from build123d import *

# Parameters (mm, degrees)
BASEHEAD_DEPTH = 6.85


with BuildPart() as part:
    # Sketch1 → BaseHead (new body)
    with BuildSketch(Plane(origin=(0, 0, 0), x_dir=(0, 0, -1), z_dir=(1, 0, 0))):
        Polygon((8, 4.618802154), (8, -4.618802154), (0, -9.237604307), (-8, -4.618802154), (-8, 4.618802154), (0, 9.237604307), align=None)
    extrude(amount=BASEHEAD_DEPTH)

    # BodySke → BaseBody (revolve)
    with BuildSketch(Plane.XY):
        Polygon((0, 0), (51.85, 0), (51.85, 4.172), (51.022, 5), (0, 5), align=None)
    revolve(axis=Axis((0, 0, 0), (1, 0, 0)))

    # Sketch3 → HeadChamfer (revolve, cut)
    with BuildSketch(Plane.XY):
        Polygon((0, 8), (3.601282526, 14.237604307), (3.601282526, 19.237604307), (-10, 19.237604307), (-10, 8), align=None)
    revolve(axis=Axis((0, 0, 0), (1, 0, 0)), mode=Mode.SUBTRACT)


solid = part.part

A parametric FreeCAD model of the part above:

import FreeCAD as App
import Part
import Sketcher
Q = App.Units.Quantity

doc = App.newDocument("Part")
body = doc.addObject("PartDesign::Body", "Body")

sketch1 = doc.addObject("Sketcher::SketchObject", "Sketch")
body.addObject(sketch1)
sketch1.AttachmentSupport = (doc.YZ_Plane, [""])
sketch1.MapMode = "FlatFace"
sketch1.addGeometry(Part.LineSegment(App.Vector(-5, -8, 0), App.Vector(5, -8, 0)), False)
sketch1.addGeometry(Part.LineSegment(App.Vector(5, -8, 0), App.Vector(9, 0, 0)), False)
sketch1.addGeometry(Part.LineSegment(App.Vector(9, 0, 0), App.Vector(5, 8, 0)), False)
sketch1.addGeometry(Part.LineSegment(App.Vector(5, 8, 0), App.Vector(-5, 8, 0)), False)
sketch1.addGeometry(Part.LineSegment(App.Vector(-5, 8, 0), App.Vector(-9, 0, 0)), False)
sketch1.addGeometry(Part.LineSegment(App.Vector(-9, 0, 0), App.Vector(-5, -8, 0)), False)
sketch1.addConstraint(Sketcher.Constraint("Coincident", 0, 2, 1, 1))
sketch1.addConstraint(Sketcher.Constraint("Coincident", 1, 2, 2, 1))
sketch1.addConstraint(Sketcher.Constraint("Coincident", 2, 2, 3, 1))
sketch1.addConstraint(Sketcher.Constraint("Coincident", 3, 2, 4, 1))
sketch1.addConstraint(Sketcher.Constraint("Coincident", 4, 2, 5, 1))
sketch1.addConstraint(Sketcher.Constraint("Coincident", 5, 2, 0, 1))
sketch1.addConstraint(Sketcher.Constraint("Horizontal", 0))
sketch1.addConstraint(Sketcher.Constraint("Horizontal", 3))
sketch1.addConstraint(Sketcher.Constraint("Symmetric", 0, 2, 3, 2, -1, 1))
sketch1.addConstraint(Sketcher.Constraint("Symmetric", 1, 2, 4, 2, -1, 1))
sketch1.addConstraint(Sketcher.Constraint("PointOnObject", 1, 2, -1))
sketch1.addConstraint(Sketcher.Constraint("Parallel", 2, 5))
sketch1.addConstraint(Sketcher.Constraint("Vertical", 0, 2, 2, 2))
sketch1.addConstraint(Sketcher.Constraint("Angle", 1, Q("60 deg")))
sketch1.addConstraint(Sketcher.Constraint("DistanceY", 0, 2, -1, 1, Q("8 mm")))
sketch1.addConstraint(Sketcher.Constraint("DistanceX", 0, 1, 0, 2, Q("9.237604 mm")))
pad1 = doc.addObject("PartDesign::Pad", "Pad")
body.addObject(pad1)
pad1.Profile = sketch1
pad1.Length = 6.85

sketch2 = doc.addObject("Sketcher::SketchObject", "Sketch001")
body.addObject(sketch2)
sketch2.AttachmentSupport = (doc.XY_Plane, [""])
sketch2.MapMode = "FlatFace"
sketch2.addGeometry(Part.LineSegment(App.Vector(0, 0, 0), App.Vector(51.9, 0, 0)), False)
sketch2.addGeometry(Part.LineSegment(App.Vector(51.9, 0, 0), App.Vector(51.9, 4.2, 0)), False)
sketch2.addGeometry(Part.LineSegment(App.Vector(51.9, 4.2, 0), App.Vector(51, 5, 0)), False)
sketch2.addGeometry(Part.LineSegment(App.Vector(51, 5, 0), App.Vector(0, 5, 0)), False)
sketch2.addGeometry(Part.LineSegment(App.Vector(0, 5, 0), App.Vector(0, 0, 0)), False)
sketch2.addConstraint(Sketcher.Constraint("Coincident", 0, 2, 1, 1))
sketch2.addConstraint(Sketcher.Constraint("Coincident", 1, 2, 2, 1))
sketch2.addConstraint(Sketcher.Constraint("Coincident", 2, 2, 3, 1))
sketch2.addConstraint(Sketcher.Constraint("Coincident", 3, 2, 4, 1))
sketch2.addConstraint(Sketcher.Constraint("Coincident", 4, 2, 0, 1))
sketch2.addConstraint(Sketcher.Constraint("Horizontal", 0))
sketch2.addConstraint(Sketcher.Constraint("Vertical", 1))
sketch2.addConstraint(Sketcher.Constraint("Horizontal", 3))
sketch2.addConstraint(Sketcher.Constraint("Vertical", 4))
sketch2.addConstraint(Sketcher.Constraint("Coincident", 4, 2, -1, 1))
sketch2.addConstraint(Sketcher.Constraint("DistanceY", 4, 2, 4, 1, Q("5 mm")))
sketch2.addConstraint(Sketcher.Constraint("Angle", 2, Q("135 deg")))
sketch2.addConstraint(Sketcher.Constraint("DistanceX", 0, 1, 0, 2, Q("51.85 mm")))
sketch2.addConstraint(Sketcher.Constraint("DistanceX", 3, 2, 3, 1, Q("51.022 mm")))
revolution = doc.addObject("PartDesign::Revolution", "Revolution")
body.addObject(revolution)
revolution.Profile = sketch2
revolution.ReferenceAxis = (sketch2, ["H_Axis"])
revolution.Angle = 360

sketch3 = doc.addObject("Sketcher::SketchObject", "Sketch002")
body.addObject(sketch3)
sketch3.AttachmentSupport = (doc.XY_Plane, [""])
sketch3.MapMode = "FlatFace"
sketch3.addGeometry(Part.LineSegment(App.Vector(0, 8, 0), App.Vector(4, 14, 0)), False)
sketch3.addGeometry(Part.LineSegment(App.Vector(4, 14, 0), App.Vector(4, 19, 0)), False)
sketch3.addGeometry(Part.LineSegment(App.Vector(4, 19, 0), App.Vector(-10, 19, 0)), False)
sketch3.addGeometry(Part.LineSegment(App.Vector(-10, 19, 0), App.Vector(-10, 8, 0)), False)
sketch3.addGeometry(Part.LineSegment(App.Vector(-10, 8, 0), App.Vector(0, 8, 0)), False)
sketch3.addConstraint(Sketcher.Constraint("Coincident", 0, 2, 1, 1))
sketch3.addConstraint(Sketcher.Constraint("Coincident", 1, 2, 2, 1))
sketch3.addConstraint(Sketcher.Constraint("Coincident", 2, 2, 3, 1))
sketch3.addConstraint(Sketcher.Constraint("Coincident", 3, 2, 4, 1))
sketch3.addConstraint(Sketcher.Constraint("Coincident", 4, 2, 0, 1))
sketch3.addConstraint(Sketcher.Constraint("Vertical", 1))
sketch3.addConstraint(Sketcher.Constraint("Horizontal", 2))
sketch3.addConstraint(Sketcher.Constraint("Vertical", 3))
sketch3.addConstraint(Sketcher.Constraint("Horizontal", 4))
sketch3.addConstraint(Sketcher.Constraint("PointOnObject", 4, 2, -2))
sketch3.addConstraint(Sketcher.Constraint("DistanceX", 4, 1, 4, 2, Q("10 mm")))
sketch3.addConstraint(Sketcher.Constraint("DistanceY", 1, 1, 1, 2, Q("5 mm")))
sketch3.addConstraint(Sketcher.Constraint("Angle", 0, Q("60 deg")))
sketch3.addConstraint(Sketcher.Constraint("DistanceY", -1, 1, 3, 2, Q("8 mm")))
sketch3.addConstraint(Sketcher.Constraint("DistanceX", 2, 2, 2, 1, Q("13.601283 mm")))
groove = doc.addObject("PartDesign::Groove", "Groove")
body.addObject(groove)
groove.Profile = sketch3
groove.ReferenceAxis = (sketch3, ["H_Axis"])
groove.Angle = 360

doc.recompute()
